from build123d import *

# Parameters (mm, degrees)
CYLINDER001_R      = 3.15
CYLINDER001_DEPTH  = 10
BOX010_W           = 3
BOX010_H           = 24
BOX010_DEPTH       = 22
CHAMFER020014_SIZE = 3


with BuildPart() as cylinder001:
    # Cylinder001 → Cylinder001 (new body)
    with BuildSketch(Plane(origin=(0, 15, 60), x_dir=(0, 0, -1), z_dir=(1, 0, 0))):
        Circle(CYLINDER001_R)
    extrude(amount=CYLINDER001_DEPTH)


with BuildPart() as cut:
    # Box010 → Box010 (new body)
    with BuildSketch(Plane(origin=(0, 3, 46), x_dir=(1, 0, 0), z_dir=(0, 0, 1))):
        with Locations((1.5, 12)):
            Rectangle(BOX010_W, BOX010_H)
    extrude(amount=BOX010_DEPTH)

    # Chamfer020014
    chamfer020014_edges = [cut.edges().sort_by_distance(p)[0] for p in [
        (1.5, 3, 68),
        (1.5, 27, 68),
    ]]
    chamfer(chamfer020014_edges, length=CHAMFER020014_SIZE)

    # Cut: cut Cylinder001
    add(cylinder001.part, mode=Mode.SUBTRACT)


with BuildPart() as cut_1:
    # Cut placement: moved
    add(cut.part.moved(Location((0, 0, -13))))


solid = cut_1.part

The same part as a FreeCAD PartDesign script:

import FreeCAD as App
import Part
import Sketcher

V = App.Vector
Q = App.Units.Quantity


def edges_at(feature, points):
    """Names of the edges that pass closest to the given points."""
    edges = feature.Shape.Edges
    near = lambda p: min(range(len(edges)), key=lambda i: edges[i].distToShape(Part.Vertex(*p))[0])
    return sorted({f"Edge{near(p) + 1}" for p in points})


def add_polygon(sketch, points):
    """Adds a closed chain of lines whose ends are joined by coincident constraints."""
    first, n = sketch.GeometryCount, len(points)
    for a, b in zip(points, points[1:] + points[:1]):
        sketch.addGeometry(Part.LineSegment(App.Vector(*a, 0), App.Vector(*b, 0)), False)
    for i in range(n):
        sketch.addConstraint(Sketcher.Constraint("Coincident", first + i, 2, first + (i + 1) % n, 1))

doc = App.newDocument("Part")
body = doc.addObject("PartDesign::Body", "Body")

sketch1 = body.newObject("Sketcher::SketchObject", "Sketch")
sketch1.AttachmentSupport = (doc.getObject("YZ_Plane"), [""])
sketch1.MapMode = "FlatFace"
sketch1.addGeometry(Part.Circle(V(15, 60, 0), V(0, 0, 1), 3.1), False)
sketch1.addConstraint([
    Sketcher.Constraint("Diameter", 0, Q("6.3 mm")),
    Sketcher.Constraint("DistanceX", -1, 1, 0, 3, Q("15 mm")),
    Sketcher.Constraint("DistanceY", -1, 1, 0, 3, Q("60 mm")),
])
pad1 = body.newObject("PartDesign::Pad", "Pad")
pad1.Profile = sketch1
pad1.Length = 10
body2 = doc.addObject("PartDesign::Body", "Body001")

sketch2 = body2.newObject("Sketcher::SketchObject", "Sketch001")
sketch2.AttachmentSupport = (doc.getObject("XY_Plane001"), [""])
sketch2.MapMode = "FlatFace"
sketch2.AttachmentOffset = App.Placement(V(0, 0, 46), App.Rotation())
add_polygon(sketch2, [(0, 27), (0, 3), (3, 3), (3, 27)])
sketch2.addConstraint([
    Sketcher.Constraint("Vertical", 0),
    Sketcher.Constraint("Horizontal", 1),
    Sketcher.Constraint("Vertical", 2),
    Sketcher.Constraint("Horizontal", 3),
    Sketcher.Constraint("PointOnObject", 0, 2, -2),
    Sketcher.Constraint("DistanceX", 1, 1, 1, 2, Q("3 mm")),
    Sketcher.Constraint("DistanceY", 0, 2, 0, 1, Q("24 mm")),
    Sketcher.Constraint("DistanceY", -1, 1, 0, 2, Q("3 mm")),
])
pad2 = body2.newObject("PartDesign::Pad", "Pad001")
pad2.Profile = sketch2
pad2.Length = 22
doc.recompute()

chamfer = body2.newObject("PartDesign::Chamfer", "Chamfer")
chamfer.Base = (pad2, edges_at(pad2, [(1.5, 3, 68), (1.5, 27, 68)]))
chamfer.Size = 3
doc.recompute()

boolean = body2.newObject("PartDesign::Boolean", "Boolean")
boolean.Type = "Cut"
boolean.addObjects([body])
body3 = doc.addObject("PartDesign::Body", "Body002")
doc.recompute()

body2.Placement = App.Placement(V(0, 0, -13), App.Rotation(V(0, 0, 1), 0))
boolean2 = body3.newObject("PartDesign::Boolean", "Boolean001")
boolean2.Type = "Fuse"
boolean2.addObjects([body2])

doc.recompute()
